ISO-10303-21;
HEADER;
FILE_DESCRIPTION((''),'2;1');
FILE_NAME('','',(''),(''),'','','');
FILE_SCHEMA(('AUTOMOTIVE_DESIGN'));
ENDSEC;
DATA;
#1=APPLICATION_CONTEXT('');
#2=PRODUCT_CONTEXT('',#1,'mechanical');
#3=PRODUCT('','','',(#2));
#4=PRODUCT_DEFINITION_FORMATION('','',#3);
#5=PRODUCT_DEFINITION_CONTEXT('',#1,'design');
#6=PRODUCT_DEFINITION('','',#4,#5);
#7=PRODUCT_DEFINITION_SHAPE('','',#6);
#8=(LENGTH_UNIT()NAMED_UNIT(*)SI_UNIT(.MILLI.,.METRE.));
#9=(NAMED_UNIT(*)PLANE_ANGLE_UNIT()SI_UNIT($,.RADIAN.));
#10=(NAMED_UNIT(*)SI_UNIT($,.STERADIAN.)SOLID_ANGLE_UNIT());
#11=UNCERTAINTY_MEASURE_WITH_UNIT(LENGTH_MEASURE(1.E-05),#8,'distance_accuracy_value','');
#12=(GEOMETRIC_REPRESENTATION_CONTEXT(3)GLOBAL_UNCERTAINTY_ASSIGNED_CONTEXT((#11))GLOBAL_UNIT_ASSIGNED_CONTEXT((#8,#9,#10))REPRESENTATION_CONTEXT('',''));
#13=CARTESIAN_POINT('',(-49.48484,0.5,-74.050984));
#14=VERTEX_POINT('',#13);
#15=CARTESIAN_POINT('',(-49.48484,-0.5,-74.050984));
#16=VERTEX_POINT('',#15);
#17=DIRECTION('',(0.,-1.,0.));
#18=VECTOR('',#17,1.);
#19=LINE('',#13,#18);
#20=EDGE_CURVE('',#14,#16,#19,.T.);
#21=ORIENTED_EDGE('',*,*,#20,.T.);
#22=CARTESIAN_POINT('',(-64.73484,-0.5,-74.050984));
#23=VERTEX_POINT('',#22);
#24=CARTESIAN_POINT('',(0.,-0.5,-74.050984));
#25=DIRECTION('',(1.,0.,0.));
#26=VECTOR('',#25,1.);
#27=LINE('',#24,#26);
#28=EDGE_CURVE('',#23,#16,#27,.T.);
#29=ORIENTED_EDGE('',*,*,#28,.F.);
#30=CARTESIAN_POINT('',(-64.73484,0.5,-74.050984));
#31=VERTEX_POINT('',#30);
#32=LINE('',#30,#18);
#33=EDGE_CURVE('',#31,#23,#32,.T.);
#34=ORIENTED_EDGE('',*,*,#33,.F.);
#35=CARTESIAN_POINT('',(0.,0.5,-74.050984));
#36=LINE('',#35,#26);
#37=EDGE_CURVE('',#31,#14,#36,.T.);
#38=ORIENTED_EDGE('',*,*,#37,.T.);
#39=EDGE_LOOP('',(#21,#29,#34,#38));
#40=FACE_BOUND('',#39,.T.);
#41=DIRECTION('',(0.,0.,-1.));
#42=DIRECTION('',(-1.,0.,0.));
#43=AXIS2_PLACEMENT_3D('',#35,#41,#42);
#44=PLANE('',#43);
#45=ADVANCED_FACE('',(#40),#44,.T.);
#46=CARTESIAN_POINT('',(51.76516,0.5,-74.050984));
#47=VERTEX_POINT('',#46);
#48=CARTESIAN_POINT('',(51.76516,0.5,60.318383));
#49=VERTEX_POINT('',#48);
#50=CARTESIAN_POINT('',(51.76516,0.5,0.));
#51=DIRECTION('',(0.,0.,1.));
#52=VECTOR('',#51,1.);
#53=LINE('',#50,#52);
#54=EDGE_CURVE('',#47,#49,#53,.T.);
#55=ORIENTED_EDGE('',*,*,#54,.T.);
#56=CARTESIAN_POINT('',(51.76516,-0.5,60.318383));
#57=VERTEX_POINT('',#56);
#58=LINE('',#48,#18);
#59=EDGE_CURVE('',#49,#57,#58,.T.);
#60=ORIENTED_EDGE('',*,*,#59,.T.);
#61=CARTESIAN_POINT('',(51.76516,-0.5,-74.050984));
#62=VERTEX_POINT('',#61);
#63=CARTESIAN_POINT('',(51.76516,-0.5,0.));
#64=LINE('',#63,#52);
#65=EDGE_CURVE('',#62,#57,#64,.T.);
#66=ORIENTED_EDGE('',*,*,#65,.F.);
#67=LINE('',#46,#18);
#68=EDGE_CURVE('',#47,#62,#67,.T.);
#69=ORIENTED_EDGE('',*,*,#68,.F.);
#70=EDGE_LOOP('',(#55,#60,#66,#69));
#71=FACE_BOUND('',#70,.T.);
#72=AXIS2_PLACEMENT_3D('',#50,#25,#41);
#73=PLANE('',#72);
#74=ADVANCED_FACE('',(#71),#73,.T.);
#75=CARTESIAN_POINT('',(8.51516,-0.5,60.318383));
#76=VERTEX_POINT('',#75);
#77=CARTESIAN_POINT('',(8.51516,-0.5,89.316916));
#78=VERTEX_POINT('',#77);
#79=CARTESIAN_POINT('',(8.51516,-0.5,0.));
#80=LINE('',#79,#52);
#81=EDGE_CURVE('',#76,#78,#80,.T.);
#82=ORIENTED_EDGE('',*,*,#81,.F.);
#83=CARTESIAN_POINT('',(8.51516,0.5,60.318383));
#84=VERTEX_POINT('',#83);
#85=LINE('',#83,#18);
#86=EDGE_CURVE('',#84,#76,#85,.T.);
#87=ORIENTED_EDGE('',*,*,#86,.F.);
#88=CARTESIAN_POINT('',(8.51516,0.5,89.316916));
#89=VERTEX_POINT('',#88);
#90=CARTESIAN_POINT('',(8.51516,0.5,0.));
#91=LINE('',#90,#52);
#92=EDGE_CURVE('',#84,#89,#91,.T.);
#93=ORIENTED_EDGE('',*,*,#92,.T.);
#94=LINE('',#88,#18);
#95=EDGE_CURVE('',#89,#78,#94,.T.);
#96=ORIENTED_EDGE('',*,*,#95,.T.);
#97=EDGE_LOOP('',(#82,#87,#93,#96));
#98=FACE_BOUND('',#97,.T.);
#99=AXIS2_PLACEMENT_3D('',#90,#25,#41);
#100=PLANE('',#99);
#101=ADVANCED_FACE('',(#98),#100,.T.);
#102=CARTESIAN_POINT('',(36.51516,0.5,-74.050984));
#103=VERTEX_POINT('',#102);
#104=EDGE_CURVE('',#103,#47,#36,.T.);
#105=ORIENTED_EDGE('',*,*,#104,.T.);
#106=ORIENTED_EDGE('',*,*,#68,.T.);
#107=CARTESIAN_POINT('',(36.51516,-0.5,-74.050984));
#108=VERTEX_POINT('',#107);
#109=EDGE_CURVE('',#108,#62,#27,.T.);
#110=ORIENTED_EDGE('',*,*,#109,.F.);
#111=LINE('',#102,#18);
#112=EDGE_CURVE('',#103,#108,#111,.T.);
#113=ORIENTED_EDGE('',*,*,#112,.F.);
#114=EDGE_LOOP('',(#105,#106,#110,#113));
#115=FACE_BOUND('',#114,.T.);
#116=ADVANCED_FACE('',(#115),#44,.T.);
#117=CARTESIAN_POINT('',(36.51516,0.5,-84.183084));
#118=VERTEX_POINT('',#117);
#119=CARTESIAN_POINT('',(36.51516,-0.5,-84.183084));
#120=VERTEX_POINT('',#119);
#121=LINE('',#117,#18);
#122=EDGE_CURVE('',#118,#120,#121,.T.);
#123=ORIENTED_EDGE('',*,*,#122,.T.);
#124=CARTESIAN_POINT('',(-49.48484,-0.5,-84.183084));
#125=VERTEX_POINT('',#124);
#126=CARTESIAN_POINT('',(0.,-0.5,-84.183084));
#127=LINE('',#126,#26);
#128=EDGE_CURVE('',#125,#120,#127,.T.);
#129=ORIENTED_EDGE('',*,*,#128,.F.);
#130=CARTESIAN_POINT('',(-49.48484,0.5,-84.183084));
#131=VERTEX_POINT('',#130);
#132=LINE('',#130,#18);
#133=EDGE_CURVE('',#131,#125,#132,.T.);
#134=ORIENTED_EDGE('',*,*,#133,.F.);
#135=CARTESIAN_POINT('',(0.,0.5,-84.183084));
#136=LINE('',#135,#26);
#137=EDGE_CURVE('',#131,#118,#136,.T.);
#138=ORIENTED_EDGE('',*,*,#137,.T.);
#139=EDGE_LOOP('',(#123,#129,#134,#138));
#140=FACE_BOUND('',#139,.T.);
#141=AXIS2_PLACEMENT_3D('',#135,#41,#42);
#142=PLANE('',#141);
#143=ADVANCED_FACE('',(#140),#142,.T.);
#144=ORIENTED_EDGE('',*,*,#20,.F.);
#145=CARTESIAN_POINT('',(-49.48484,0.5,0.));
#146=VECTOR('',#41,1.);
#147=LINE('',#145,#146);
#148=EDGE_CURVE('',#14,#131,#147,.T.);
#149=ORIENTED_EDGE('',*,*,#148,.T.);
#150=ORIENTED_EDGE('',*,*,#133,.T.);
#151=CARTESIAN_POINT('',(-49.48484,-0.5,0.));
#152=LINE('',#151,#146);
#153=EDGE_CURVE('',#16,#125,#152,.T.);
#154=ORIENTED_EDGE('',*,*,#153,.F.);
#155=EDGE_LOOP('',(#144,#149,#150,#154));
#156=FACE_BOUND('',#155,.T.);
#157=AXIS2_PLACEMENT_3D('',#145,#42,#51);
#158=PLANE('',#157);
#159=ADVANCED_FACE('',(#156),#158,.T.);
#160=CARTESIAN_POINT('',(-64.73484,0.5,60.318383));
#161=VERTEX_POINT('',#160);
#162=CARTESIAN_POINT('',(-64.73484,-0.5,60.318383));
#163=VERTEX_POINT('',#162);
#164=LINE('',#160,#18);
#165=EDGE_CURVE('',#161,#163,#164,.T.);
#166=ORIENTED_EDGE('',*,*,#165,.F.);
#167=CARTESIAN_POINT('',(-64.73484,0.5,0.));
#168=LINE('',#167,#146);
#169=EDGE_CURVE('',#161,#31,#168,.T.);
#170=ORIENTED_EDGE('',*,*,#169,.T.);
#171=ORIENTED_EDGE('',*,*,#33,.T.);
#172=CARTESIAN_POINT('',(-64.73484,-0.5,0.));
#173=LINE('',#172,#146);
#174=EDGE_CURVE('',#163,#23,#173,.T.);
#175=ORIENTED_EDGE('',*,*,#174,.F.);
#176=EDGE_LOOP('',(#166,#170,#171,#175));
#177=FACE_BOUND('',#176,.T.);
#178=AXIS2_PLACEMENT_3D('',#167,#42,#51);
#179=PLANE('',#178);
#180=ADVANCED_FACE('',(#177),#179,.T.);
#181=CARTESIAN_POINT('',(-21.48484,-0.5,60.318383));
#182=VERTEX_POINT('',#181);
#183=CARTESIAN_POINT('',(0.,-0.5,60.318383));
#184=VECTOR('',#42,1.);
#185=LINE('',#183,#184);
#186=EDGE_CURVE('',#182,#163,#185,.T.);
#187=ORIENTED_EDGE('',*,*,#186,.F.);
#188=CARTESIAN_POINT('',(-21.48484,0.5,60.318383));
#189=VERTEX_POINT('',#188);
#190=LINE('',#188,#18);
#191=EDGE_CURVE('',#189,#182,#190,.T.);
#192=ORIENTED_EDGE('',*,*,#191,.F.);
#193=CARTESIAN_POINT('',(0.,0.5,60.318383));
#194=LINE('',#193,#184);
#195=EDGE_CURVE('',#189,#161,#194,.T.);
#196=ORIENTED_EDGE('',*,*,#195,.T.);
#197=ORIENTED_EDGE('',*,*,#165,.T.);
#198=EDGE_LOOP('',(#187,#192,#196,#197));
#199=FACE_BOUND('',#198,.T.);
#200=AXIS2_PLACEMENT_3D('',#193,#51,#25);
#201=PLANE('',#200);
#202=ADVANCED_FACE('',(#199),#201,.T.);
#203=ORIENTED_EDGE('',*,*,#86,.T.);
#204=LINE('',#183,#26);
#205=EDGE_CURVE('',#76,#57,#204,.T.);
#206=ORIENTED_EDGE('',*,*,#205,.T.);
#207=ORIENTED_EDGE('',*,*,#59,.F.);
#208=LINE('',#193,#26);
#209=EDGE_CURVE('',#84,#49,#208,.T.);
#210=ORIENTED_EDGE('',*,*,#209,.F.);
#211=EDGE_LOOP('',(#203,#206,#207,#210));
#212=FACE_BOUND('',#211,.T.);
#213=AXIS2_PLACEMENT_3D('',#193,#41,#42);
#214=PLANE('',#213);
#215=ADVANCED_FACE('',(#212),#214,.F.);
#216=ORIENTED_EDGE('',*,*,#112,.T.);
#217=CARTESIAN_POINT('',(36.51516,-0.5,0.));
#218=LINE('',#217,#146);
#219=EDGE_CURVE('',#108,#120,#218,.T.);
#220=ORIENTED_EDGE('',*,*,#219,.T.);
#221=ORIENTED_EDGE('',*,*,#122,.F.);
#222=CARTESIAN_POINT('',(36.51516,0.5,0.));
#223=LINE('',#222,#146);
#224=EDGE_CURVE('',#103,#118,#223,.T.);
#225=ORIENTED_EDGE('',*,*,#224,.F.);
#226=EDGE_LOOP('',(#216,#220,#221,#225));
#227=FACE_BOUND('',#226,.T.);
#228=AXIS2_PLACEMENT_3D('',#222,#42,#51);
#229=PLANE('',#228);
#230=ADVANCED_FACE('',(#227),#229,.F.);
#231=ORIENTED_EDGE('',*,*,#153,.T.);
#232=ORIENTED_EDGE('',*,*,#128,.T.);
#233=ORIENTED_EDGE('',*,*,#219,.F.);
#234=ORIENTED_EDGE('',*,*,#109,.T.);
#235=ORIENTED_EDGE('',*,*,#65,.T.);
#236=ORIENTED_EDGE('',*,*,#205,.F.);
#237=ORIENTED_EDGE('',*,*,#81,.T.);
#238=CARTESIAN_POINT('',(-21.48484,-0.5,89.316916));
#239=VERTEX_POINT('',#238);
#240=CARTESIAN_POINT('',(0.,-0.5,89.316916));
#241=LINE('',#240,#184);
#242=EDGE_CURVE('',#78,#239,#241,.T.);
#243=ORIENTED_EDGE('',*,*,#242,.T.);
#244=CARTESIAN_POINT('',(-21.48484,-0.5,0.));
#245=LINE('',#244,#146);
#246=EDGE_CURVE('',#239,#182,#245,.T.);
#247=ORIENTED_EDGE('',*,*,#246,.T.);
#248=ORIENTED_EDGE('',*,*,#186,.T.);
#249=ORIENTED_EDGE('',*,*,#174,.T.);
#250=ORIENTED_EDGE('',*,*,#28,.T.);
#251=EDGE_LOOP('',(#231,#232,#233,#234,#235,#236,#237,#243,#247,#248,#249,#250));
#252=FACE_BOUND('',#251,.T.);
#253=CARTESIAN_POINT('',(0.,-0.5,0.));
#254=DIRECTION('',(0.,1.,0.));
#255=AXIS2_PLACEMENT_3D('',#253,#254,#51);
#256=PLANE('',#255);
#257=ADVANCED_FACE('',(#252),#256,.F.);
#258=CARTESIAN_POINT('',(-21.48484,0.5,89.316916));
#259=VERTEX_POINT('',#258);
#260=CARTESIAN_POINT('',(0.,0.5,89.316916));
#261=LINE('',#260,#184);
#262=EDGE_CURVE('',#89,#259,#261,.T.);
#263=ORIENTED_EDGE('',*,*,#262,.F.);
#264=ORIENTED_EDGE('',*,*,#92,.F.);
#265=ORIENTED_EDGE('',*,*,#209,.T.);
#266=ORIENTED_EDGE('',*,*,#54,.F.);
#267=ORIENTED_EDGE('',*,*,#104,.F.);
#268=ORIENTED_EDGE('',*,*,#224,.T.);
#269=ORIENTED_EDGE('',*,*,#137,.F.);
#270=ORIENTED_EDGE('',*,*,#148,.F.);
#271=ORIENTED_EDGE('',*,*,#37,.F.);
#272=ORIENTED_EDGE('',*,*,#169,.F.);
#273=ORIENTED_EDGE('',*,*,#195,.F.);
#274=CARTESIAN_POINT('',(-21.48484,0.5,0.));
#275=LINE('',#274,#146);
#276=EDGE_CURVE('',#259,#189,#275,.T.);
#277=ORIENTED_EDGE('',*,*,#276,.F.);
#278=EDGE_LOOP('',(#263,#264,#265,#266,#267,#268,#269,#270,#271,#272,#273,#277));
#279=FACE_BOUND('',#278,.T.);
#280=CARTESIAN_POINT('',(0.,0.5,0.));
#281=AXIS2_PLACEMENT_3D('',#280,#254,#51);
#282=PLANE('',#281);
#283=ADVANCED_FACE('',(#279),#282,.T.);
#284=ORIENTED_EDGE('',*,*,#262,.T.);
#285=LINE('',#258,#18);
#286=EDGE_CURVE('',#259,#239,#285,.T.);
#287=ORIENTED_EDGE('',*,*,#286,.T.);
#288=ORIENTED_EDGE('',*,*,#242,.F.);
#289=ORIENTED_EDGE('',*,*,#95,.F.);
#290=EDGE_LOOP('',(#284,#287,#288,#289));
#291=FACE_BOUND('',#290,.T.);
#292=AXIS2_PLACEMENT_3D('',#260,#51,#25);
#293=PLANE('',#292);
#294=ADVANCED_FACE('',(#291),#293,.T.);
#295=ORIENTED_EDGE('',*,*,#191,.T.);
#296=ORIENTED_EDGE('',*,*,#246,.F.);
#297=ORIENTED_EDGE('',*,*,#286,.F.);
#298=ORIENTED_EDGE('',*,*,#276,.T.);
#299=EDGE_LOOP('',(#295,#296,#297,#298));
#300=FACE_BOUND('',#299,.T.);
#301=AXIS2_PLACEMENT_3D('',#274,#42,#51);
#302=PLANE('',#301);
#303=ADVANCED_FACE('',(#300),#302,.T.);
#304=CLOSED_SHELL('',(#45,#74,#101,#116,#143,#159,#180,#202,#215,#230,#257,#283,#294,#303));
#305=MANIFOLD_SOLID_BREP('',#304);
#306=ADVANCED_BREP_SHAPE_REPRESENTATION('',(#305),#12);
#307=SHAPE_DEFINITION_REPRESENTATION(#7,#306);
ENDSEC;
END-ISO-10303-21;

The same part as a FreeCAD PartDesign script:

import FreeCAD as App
import Part
import Sketcher

doc = App.newDocument("Part")
body = doc.addObject("PartDesign::Body", "Body")

sketch1 = body.newObject("Sketcher::SketchObject", "Sketch")
sketch1.AttachmentSupport = (doc.getObject("XZ_Plane"), [""])
sketch1.MapMode = "FlatFace"
sketch1.addGeometry([
    Part.LineSegment(App.Vector(51.76516, -74.050984, 0), App.Vector(36.51516, -74.050984, 0)),
    Part.LineSegment(App.Vector(36.51516, -74.050984, 0), App.Vector(36.51516, -84.183084, 0)),
    Part.LineSegment(App.Vector(36.51516, -84.183084, 0), App.Vector(-49.48484, -84.183084, 0)),
    Part.LineSegment(App.Vector(-49.48484, -84.183084, 0), App.Vector(-49.48484, -74.050984, 0)),
    Part.LineSegment(App.Vector(-49.48484, -74.050984, 0), App.Vector(-64.73484, -74.050984, 0)),
    Part.LineSegment(App.Vector(-64.73484, -74.050984, 0), App.Vector(-64.73484, 60.318383, 0)),
    Part.LineSegment(App.Vector(-64.73484, 60.318383, 0), App.Vector(-21.48484, 60.318383, 0)),
    Part.LineSegment(App.Vector(-21.48484, 60.318383, 0), App.Vector(-21.48484, 89.316916, 0)),
    Part.LineSegment(App.Vector(-21.48484, 89.316916, 0), App.Vector(8.51516, 89.316916, 0)),
    Part.LineSegment(App.Vector(8.51516, 89.316916, 0), App.Vector(8.51516, 60.318383, 0)),
    Part.LineSegment(App.Vector(8.51516, 60.318383, 0), App.Vector(51.76516, 60.318383, 0)),
    Part.LineSegment(App.Vector(51.76516, 60.318383, 0), App.Vector(51.76516, -74.050984, 0)),
], False)
sketch1.addConstraint([
    Sketcher.Constraint("Coincident", 0, 2, 1, 1),
    Sketcher.Constraint("Coincident", 1, 2, 2, 1),
    Sketcher.Constraint("Coincident", 2, 2, 3, 1),
    Sketcher.Constraint("Coincident", 3, 2, 4, 1),
    Sketcher.Constraint("Coincident", 4, 2, 5, 1),
    Sketcher.Constraint("Coincident", 5, 2, 6, 1),
    Sketcher.Constraint("Coincident", 6, 2, 7, 1),
    Sketcher.Constraint("Coincident", 7, 2, 8, 1),
    Sketcher.Constraint("Coincident", 8, 2, 9, 1),
    Sketcher.Constraint("Coincident", 9, 2, 10, 1),
    Sketcher.Constraint("Coincident", 10, 2, 11, 1),
    Sketcher.Constraint("Coincident", 11, 2, 0, 1),
    Sketcher.Constraint("Horizontal", 0),
    Sketcher.Constraint("Vertical", 1),
    Sketcher.Constraint("Horizontal", 2),
    Sketcher.Constraint("Vertical", 3),
    Sketcher.Constraint("Horizontal", 4),
    Sketcher.Constraint("Vertical", 5),
    Sketcher.Constraint("Horizontal", 6),
    Sketcher.Constraint("Vertical", 7),
    Sketcher.Constraint("Horizontal", 8),
    Sketcher.Constraint("Vertical", 9),
    Sketcher.Constraint("Horizontal", 10),
    Sketcher.Constraint("Vertical", 11),
    Sketcher.Constraint("Horizontal", 0, 2, 3, 2),
    Sketcher.Constraint("Horizontal", 6, 2, 9, 2),
    Sketcher.Constraint("Equal", 0, 4),
    Sketcher.Constraint("Equal", 6, 10),
    Sketcher.Constraint("DistanceX", 2, 2, 2, 1, 86.0),
    Sketcher.Constraint("DistanceX", 8, 1, 8, 2, 30.0),
    Sketcher.Constraint("DistanceX", 0, 2, 0, 1, 15.25),
    Sketcher.Constraint("DistanceY", 1, 2, 1, 1, 10.1321),
    Sketcher.Constraint("DistanceY", 3, 2, 7, 2, 163.3679),
    Sketcher.Constraint("DistanceY", 5, 1, 5, 2, 134.369367),
    Sketcher.Constraint("DistanceX", -1, 1, 0, 2, 36.51516),
    Sketcher.Constraint("DistanceY", 0, 2, -1, 1, 74.050984),
])
pad1 = body.newObject("PartDesign::Pad", "Pad")
pad1.Profile = sketch1
pad1.Length = 1
pad1.Midplane = True

doc.recompute()
